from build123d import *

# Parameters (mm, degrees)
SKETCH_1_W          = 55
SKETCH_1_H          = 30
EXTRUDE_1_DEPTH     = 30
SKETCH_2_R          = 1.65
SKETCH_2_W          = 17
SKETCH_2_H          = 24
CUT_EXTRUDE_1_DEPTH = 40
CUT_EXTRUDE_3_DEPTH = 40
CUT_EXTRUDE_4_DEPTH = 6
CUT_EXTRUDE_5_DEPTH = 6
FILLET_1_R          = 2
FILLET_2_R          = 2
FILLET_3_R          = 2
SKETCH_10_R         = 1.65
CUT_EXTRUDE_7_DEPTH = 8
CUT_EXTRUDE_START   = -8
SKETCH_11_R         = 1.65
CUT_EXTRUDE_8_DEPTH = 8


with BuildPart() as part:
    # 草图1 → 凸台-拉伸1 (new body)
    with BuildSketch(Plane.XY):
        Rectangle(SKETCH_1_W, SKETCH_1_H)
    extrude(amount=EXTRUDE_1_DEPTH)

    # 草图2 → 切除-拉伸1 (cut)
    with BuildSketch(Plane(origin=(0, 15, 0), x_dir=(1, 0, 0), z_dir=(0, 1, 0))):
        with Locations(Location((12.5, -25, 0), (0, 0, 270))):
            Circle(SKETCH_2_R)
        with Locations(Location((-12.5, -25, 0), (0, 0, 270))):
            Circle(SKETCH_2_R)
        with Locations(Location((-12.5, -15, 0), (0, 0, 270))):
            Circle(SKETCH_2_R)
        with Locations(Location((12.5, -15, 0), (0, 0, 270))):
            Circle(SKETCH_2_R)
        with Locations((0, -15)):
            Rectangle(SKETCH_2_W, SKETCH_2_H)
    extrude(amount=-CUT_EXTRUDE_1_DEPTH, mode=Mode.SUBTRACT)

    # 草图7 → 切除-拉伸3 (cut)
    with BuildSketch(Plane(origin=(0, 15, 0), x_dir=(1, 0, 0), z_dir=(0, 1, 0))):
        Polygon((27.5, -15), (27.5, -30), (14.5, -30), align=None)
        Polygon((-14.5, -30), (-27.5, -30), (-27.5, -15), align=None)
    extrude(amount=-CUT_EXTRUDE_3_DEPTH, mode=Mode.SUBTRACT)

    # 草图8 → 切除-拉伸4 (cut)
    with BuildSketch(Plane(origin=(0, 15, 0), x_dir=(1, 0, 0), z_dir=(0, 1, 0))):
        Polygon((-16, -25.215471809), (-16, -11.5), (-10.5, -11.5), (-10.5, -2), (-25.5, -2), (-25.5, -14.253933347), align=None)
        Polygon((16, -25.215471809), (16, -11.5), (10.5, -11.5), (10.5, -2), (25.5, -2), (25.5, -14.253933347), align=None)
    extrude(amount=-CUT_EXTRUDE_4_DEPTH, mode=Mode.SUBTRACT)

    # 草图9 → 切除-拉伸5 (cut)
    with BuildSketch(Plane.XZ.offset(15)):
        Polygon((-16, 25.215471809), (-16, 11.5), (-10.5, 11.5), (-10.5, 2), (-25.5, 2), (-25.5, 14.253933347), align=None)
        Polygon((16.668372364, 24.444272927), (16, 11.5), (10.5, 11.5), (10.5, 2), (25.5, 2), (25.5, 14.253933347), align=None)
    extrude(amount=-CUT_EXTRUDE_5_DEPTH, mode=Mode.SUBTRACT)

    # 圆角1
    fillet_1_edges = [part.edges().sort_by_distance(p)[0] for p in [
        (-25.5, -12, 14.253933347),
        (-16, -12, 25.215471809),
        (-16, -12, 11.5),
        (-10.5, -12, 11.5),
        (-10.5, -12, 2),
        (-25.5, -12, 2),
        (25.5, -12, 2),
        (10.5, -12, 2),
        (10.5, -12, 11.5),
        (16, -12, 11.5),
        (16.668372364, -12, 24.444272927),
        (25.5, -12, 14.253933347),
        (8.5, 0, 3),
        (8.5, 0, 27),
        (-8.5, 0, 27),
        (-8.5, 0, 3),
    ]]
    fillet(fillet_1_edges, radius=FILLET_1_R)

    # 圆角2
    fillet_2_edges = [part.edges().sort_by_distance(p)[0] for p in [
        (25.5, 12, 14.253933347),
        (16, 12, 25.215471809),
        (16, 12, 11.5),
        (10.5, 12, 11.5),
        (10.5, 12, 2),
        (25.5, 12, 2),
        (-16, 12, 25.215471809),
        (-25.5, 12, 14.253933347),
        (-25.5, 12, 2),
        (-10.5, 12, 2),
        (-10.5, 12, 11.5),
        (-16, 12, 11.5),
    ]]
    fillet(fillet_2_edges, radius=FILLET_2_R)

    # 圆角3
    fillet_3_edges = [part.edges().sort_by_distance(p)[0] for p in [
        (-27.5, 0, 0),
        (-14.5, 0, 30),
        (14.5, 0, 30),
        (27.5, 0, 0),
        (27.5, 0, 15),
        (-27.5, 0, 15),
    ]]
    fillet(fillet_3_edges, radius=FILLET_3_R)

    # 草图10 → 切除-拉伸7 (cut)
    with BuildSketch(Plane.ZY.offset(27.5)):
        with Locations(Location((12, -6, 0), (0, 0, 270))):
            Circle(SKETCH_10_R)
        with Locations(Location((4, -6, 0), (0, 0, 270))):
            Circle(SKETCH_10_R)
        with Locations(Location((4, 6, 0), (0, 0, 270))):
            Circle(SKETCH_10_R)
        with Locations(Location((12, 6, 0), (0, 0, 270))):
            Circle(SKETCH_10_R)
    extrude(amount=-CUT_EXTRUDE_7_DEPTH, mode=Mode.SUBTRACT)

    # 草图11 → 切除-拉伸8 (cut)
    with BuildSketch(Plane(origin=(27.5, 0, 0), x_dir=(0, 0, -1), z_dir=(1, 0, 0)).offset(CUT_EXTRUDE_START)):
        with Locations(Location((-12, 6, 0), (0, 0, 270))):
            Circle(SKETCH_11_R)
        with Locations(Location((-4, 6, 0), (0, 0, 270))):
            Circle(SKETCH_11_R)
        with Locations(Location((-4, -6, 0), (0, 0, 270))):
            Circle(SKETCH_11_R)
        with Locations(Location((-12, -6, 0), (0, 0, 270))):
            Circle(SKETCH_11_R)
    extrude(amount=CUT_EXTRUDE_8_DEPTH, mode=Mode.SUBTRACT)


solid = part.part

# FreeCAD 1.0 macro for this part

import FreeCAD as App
import Part
import Sketcher
Q = App.Units.Quantity


def edges_at(feature, points):
    """Names of the edges that pass closest to the given points."""
    edges = feature.Shape.Edges
    near = lambda p: min(range(len(edges)), key=lambda i: edges[i].distToShape(Part.Vertex(*p))[0])
    return sorted({f"Edge{near(p) + 1}" for p in points})

doc = App.newDocument("Part")
body = doc.addObject("PartDesign::Body", "Body")

sketch1 = doc.addObject("Sketcher::SketchObject", "Sketch")
body.addObject(sketch1)
sketch1.AttachmentSupport = (doc.XY_Plane, [""])
sketch1.MapMode = "FlatFace"
sketch1.addGeometry(Part.LineSegment(App.Vector(-28, 15, 0), App.Vector(-28, -15, 0)), False)
sketch1.addGeometry(Part.LineSegment(App.Vector(-28, -15, 0), App.Vector(28, -15, 0)), False)
sketch1.addGeometry(Part.LineSegment(App.Vector(28, -15, 0), App.Vector(28, 15, 0)), False)
sketch1.addGeometry(Part.LineSegment(App.Vector(28, 15, 0), App.Vector(-28, 15, 0)), False)
sketch1.addConstraint(Sketcher.Constraint("Coincident", 0, 2, 1, 1))
sketch1.addConstraint(Sketcher.Constraint("Coincident", 1, 2, 2, 1))
sketch1.addConstraint(Sketcher.Constraint("Coincident", 2, 2, 3, 1))
sketch1.addConstraint(Sketcher.Constraint("Coincident", 3, 2, 0, 1))
sketch1.addConstraint(Sketcher.Constraint("Vertical", 0))
sketch1.addConstraint(Sketcher.Constraint("Horizontal", 1))
sketch1.addConstraint(Sketcher.Constraint("Vertical", 2))
sketch1.addConstraint(Sketcher.Constraint("Horizontal", 3))
sketch1.addConstraint(Sketcher.Constraint("Symmetric", 0, 2, 2, 2, -1, 1))
sketch1.addConstraint(Sketcher.Constraint("DistanceX", 1, 1, 1, 2, Q("55 mm")))
sketch1.addConstraint(Sketcher.Constraint("DistanceY", 0, 2, 0, 1, Q("30 mm")))
pad1 = doc.addObject("PartDesign::Pad", "Pad")
body.addObject(pad1)
pad1.Profile = sketch1
pad1.Length = 30

sketch2 = doc.addObject("Sketcher::SketchObject", "Sketch001")
body.addObject(sketch2)
sketch2.AttachmentSupport = (doc.XZ_Plane, [""])
sketch2.MapMode = "FlatFace"
sketch2.AttachmentOffset = App.Placement(App.Vector(0, 0, -15), App.Rotation())
sketch2.addGeometry(Part.Circle(App.Vector(12.5, 25, 0), App.Vector(0, 0, 1), 1.6), False)
sketch2.addGeometry(Part.Circle(App.Vector(-12.5, 25, 0), App.Vector(0, 0, 1), 1.6), False)
sketch2.addGeometry(Part.Circle(App.Vector(-12.5, 15, 0), App.Vector(0, 0, 1), 1.6), False)
sketch2.addGeometry(Part.Circle(App.Vector(12.5, 15, 0), App.Vector(0, 0, 1), 1.6), False)
sketch2.addGeometry(Part.LineSegment(App.Vector(-8.5, 3, 0), App.Vector(-8.5, 27, 0)), False)
sketch2.addGeometry(Part.LineSegment(App.Vector(-8.5, 27, 0), App.Vector(8.5, 27, 0)), False)
sketch2.addGeometry(Part.LineSegment(App.Vector(8.5, 27, 0), App.Vector(8.5, 3, 0)), False)
sketch2.addGeometry(Part.LineSegment(App.Vector(8.5, 3, 0), App.Vector(-8.5, 3, 0)), False)
sketch2.addConstraint(Sketcher.Constraint("Coincident", 4, 2, 5, 1))
sketch2.addConstraint(Sketcher.Constraint("Coincident", 5, 2, 6, 1))
sketch2.addConstraint(Sketcher.Constraint("Coincident", 6, 2, 7, 1))
sketch2.addConstraint(Sketcher.Constraint("Coincident", 7, 2, 4, 1))
sketch2.addConstraint(Sketcher.Constraint("Vertical", 4))
sketch2.addConstraint(Sketcher.Constraint("Horizontal", 5))
sketch2.addConstraint(Sketcher.Constraint("Vertical", 6))
sketch2.addConstraint(Sketcher.Constraint("Horizontal", 7))
sketch2.addConstraint(Sketcher.Constraint("Equal", 0, 1))
sketch2.addConstraint(Sketcher.Constraint("Equal", 1, 2))
sketch2.addConstraint(Sketcher.Constraint("Equal", 2, 3))
sketch2.addConstraint(Sketcher.Constraint("Symmetric", 0, 3, 1, 3, -2))
sketch2.addConstraint(Sketcher.Constraint("Symmetric", 2, 3, 3, 3, -2))
sketch2.addConstraint(Sketcher.Constraint("Vertical", 1, 3, 2, 3))
sketch2.addConstraint(Sketcher.Constraint("Diameter", 0, Q("3.3 mm")))
sketch2.addConstraint(Sketcher.Constraint("DistanceX", 5, 1, 5, 2, Q("17 mm")))
sketch2.addConstraint(Sketcher.Constraint("DistanceY", 4, 1, 4, 2, Q("24 mm")))
sketch2.addConstraint(Sketcher.Constraint("DistanceY", -1, 1, 0, 3, Q("25 mm")))
sketch2.addConstraint(Sketcher.Constraint("DistanceY", -1, 1, 2, 3, Q("15 mm")))
sketch2.addConstraint(Sketcher.Constraint("DistanceY", -1, 1, 4, 2, Q("27 mm")))
sketch2.addConstraint(Sketcher.Constraint("DistanceX", 1, 3, 0, 3, Q("25 mm")))
sketch2.addConstraint(Sketcher.Constraint("DistanceX", 1, 3, 4, 2, Q("4 mm")))
pocket1 = doc.addObject("PartDesign::Pocket", "Pocket")
body.addObject(pocket1)
pocket1.Profile = sketch2
pocket1.Length = 40
pocket1.Reversed = True

sketch3 = doc.addObject("Sketcher::SketchObject", "Sketch002")
body.addObject(sketch3)
sketch3.AttachmentSupport = (doc.XZ_Plane, [""])
sketch3.MapMode = "FlatFace"
sketch3.AttachmentOffset = App.Placement(App.Vector(0, 0, -15), App.Rotation())
sketch3.addGeometry(Part.LineSegment(App.Vector(28, 30, 0), App.Vector(28, 15, 0)), False)
sketch3.addGeometry(Part.LineSegment(App.Vector(28, 15, 0), App.Vector(14, 30, 0)), False)
sketch3.addGeometry(Part.LineSegment(App.Vector(14, 30, 0), App.Vector(28, 30, 0)), False)
sketch3.addGeometry(Part.LineSegment(App.Vector(-28, 30, 0), App.Vector(-14, 30, 0)), False)
sketch3.addGeometry(Part.LineSegment(App.Vector(-14, 30, 0), App.Vector(-28, 15, 0)), False)
sketch3.addGeometry(Part.LineSegment(App.Vector(-28, 15, 0), App.Vector(-28, 30, 0)), False)
sketch3.addConstraint(Sketcher.Constraint("Coincident", 0, 2, 1, 1))
sketch3.addConstraint(Sketcher.Constraint("Coincident", 1, 2, 2, 1))
sketch3.addConstraint(Sketcher.Constraint("Coincident", 2, 2, 0, 1))
sketch3.addConstraint(Sketcher.Constraint("Coincident", 3, 2, 4, 1))
sketch3.addConstraint(Sketcher.Constraint("Coincident", 4, 2, 5, 1))
sketch3.addConstraint(Sketcher.Constraint("Coincident", 5, 2, 3, 1))
sketch3.addConstraint(Sketcher.Constraint("Vertical", 0))
sketch3.addConstraint(Sketcher.Constraint("Horizontal", 2))
sketch3.addConstraint(Sketcher.Constraint("Horizontal", 3))
sketch3.addConstraint(Sketcher.Constraint("Vertical", 5))
sketch3.addConstraint(Sketcher.Constraint("Symmetric", 1, 2, 3, 2, -2))
sketch3.addConstraint(Sketcher.Constraint("Symmetric", 0, 2, 4, 2, -2))
sketch3.addConstraint(Sketcher.Constraint("DistanceX", 2, 1, 2, 2, Q("13 mm")))
sketch3.addConstraint(Sketcher.Constraint("DistanceY", 0, 2, 0, 1, Q("15 mm")))
sketch3.addConstraint(Sketcher.Constraint("DistanceY", -1, 1, 0, 2, Q("15 mm")))
sketch3.addConstraint(Sketcher.Constraint("DistanceX", 3, 2, 1, 2, Q("29 mm")))
pocket2 = doc.addObject("PartDesign::Pocket", "Pocket001")
body.addObject(pocket2)
pocket2.Profile = sketch3
pocket2.Length = 40
pocket2.Reversed = True

sketch4 = doc.addObject("Sketcher::SketchObject", "Sketch003")
body.addObject(sketch4)
sketch4.AttachmentSupport = (doc.XZ_Plane, [""])
sketch4.MapMode = "FlatFace"
sketch4.AttachmentOffset = App.Placement(App.Vector(0, 0, -15), App.Rotation())
sketch4.addGeometry(Part.LineSegment(App.Vector(-16, 25, 0), App.Vector(-16, 12, 0)), False)
sketch4.addGeometry(Part.LineSegment(App.Vector(-16, 12, 0), App.Vector(-10, 12, 0)), False)
sketch4.addGeometry(Part.LineSegment(App.Vector(-10, 12, 0), App.Vector(-10, 2, 0)), False)
sketch4.addGeometry(Part.LineSegment(App.Vector(-10, 2, 0), App.Vector(-26, 2, 0)), False)
sketch4.addGeometry(Part.LineSegment(App.Vector(-26, 2, 0), App.Vector(-26, 14, 0)), False)
sketch4.addGeometry(Part.LineSegment(App.Vector(-26, 14, 0), App.Vector(-16, 25, 0)), False)
sketch4.addGeometry(Part.LineSegment(App.Vector(16, 12, 0), App.Vector(16, 25, 0)), False)
sketch4.addGeometry(Part.LineSegment(App.Vector(16, 25, 0), App.Vector(26, 14, 0)), False)
sketch4.addGeometry(Part.LineSegment(App.Vector(26, 14, 0), App.Vector(26, 2, 0)), False)
sketch4.addGeometry(Part.LineSegment(App.Vector(26, 2, 0), App.Vector(10, 2, 0)), False)
sketch4.addGeometry(Part.LineSegment(App.Vector(10, 2, 0), App.Vector(10, 12, 0)), False)
sketch4.addGeometry(Part.LineSegment(App.Vector(10, 12, 0), App.Vector(16, 12, 0)), False)
sketch4.addConstraint(Sketcher.Constraint("Coincident", 0, 2, 1, 1))
sketch4.addConstraint(Sketcher.Constraint("Coincident", 1, 2, 2, 1))
sketch4.addConstraint(Sketcher.Constraint("Coincident", 2, 2, 3, 1))
sketch4.addConstraint(Sketcher.Constraint("Coincident", 3, 2, 4, 1))
sketch4.addConstraint(Sketcher.Constraint("Coincident", 4, 2, 5, 1))
sketch4.addConstraint(Sketcher.Constraint("Coincident", 5, 2, 0, 1))
sketch4.addConstraint(Sketcher.Constraint("Coincident", 6, 2, 7, 1))
sketch4.addConstraint(Sketcher.Constraint("Coincident", 7, 2, 8, 1))
sketch4.addConstraint(Sketcher.Constraint("Coincident", 8, 2, 9, 1))
sketch4.addConstraint(Sketcher.Constraint("Coincident", 9, 2, 10, 1))
sketch4.addConstraint(Sketcher.Constraint("Coincident", 10, 2, 11, 1))
sketch4.addConstraint(Sketcher.Constraint("Coincident", 11, 2, 6, 1))
sketch4.addConstraint(Sketcher.Constraint("Vertical", 0))
sketch4.addConstraint(Sketcher.Constraint("Horizontal", 1))
sketch4.addConstraint(Sketcher.Constraint("Vertical", 2))
sketch4.addConstraint(Sketcher.Constraint("Horizontal", 3))
sketch4.addConstraint(Sketcher.Constraint("Vertical", 4))
sketch4.addConstraint(Sketcher.Constraint("Vertical", 6))
sketch4.addConstraint(Sketcher.Constraint("Vertical", 8))
sketch4.addConstraint(Sketcher.Constraint("Horizontal", 9))
sketch4.addConstraint(Sketcher.Constraint("Vertical", 10))
sketch4.addConstraint(Sketcher.Constraint("Horizontal", 11))
sketch4.addConstraint(Sketcher.Constraint("Symmetric", 5, 2, 6, 2, -2))
sketch4.addConstraint(Sketcher.Constraint("Symmetric", 4, 2, 7, 2, -2))
sketch4.addConstraint(Sketcher.Constraint("Symmetric", 2, 2, 9, 2, -2))
sketch4.addConstraint(Sketcher.Constraint("Horizontal", 1, 2, 10, 2))
sketch4.addConstraint(Sketcher.Constraint("DistanceX", 3, 2, 3, 1, Q("15 mm")))
sketch4.addConstraint(Sketcher.Constraint("DistanceX", 1, 1, 1, 2, Q("5.5 mm")))
sketch4.addConstraint(Sketcher.Constraint("DistanceY", 2, 2, 2, 1, Q("9.5 mm")))
sketch4.addConstraint(Sketcher.Constraint("DistanceX", 0, 2, -1, 1, Q("16 mm")))
sketch4.addConstraint(Sketcher.Constraint("DistanceY", -1, 1, 2, 2, Q("2 mm")))
sketch4.addConstraint(Sketcher.Constraint("DistanceY", 0, 2, 0, 1, Q("13.715472 mm")))
sketch4.addConstraint(Sketcher.Constraint("DistanceY", 4, 1, 4, 2, Q("12.253933 mm")))
pocket3 = doc.addObject("PartDesign::Pocket", "Pocket002")
body.addObject(pocket3)
pocket3.Profile = sketch4
pocket3.Length = 6
pocket3.Reversed = True

sketch5 = doc.addObject("Sketcher::SketchObject", "Sketch004")
body.addObject(sketch5)
sketch5.AttachmentSupport = (doc.XZ_Plane, [""])
sketch5.MapMode = "FlatFace"
sketch5.AttachmentOffset = App.Placement(App.Vector(0, 0, 15), App.Rotation())
sketch5.addGeometry(Part.LineSegment(App.Vector(-16, 12, 0), App.Vector(-16, 25, 0)), False)
sketch5.addGeometry(Part.LineSegment(App.Vector(-16, 25, 0), App.Vector(-26, 14, 0)), False)
sketch5.addGeometry(Part.LineSegment(App.Vector(-26, 14, 0), App.Vector(-26, 2, 0)), False)
sketch5.addGeometry(Part.LineSegment(App.Vector(-26, 2, 0), App.Vector(-10, 2, 0)), False)
sketch5.addGeometry(Part.LineSegment(App.Vector(-10, 2, 0), App.Vector(-10, 12, 0)), False)
sketch5.addGeometry(Part.LineSegment(App.Vector(-10, 12, 0), App.Vector(-16, 12, 0)), False)
sketch5.addGeometry(Part.LineSegment(App.Vector(17, 24, 0), App.Vector(16, 12, 0)), False)
sketch5.addGeometry(Part.LineSegment(App.Vector(16, 12, 0), App.Vector(10, 12, 0)), False)
sketch5.addGeometry(Part.LineSegment(App.Vector(10, 12, 0), App.Vector(10, 2, 0)), False)
sketch5.addGeometry(Part.LineSegment(App.Vector(10, 2, 0), App.Vector(26, 2, 0)), False)
sketch5.addGeometry(Part.LineSegment(App.Vector(26, 2, 0), App.Vector(26, 14, 0)), False)
sketch5.addGeometry(Part.LineSegment(App.Vector(26, 14, 0), App.Vector(17, 24, 0)), False)
sketch5.addConstraint(Sketcher.Constraint("Coincident", 0, 2, 1, 1))
sketch5.addConstraint(Sketcher.Constraint("Coincident", 1, 2, 2, 1))
sketch5.addConstraint(Sketcher.Constraint("Coincident", 2, 2, 3, 1))
sketch5.addConstraint(Sketcher.Constraint("Coincident", 3, 2, 4, 1))
sketch5.addConstraint(Sketcher.Constraint("Coincident", 4, 2, 5, 1))
sketch5.addConstraint(Sketcher.Constraint("Coincident", 5, 2, 0, 1))
sketch5.addConstraint(Sketcher.Constraint("Coincident", 6, 2, 7, 1))
sketch5.addConstraint(Sketcher.Constraint("Coincident", 7, 2, 8, 1))
sketch5.addConstraint(Sketcher.Constraint("Coincident", 8, 2, 9, 1))
sketch5.addConstraint(Sketcher.Constraint("Coincident", 9, 2, 10, 1))
sketch5.addConstraint(Sketcher.Constraint("Coincident", 10, 2, 11, 1))
sketch5.addConstraint(Sketcher.Constraint("Coincident", 11, 2, 6, 1))
sketch5.addConstraint(Sketcher.Constraint("Vertical", 0))
sketch5.addConstraint(Sketcher.Constraint("Vertical", 2))
sketch5.addConstraint(Sketcher.Constraint("Horizontal", 3))
sketch5.addConstraint(Sketcher.Constraint("Vertical", 4))
sketch5.addConstraint(Sketcher.Constraint("Horizontal", 5))
sketch5.addConstraint(Sketcher.Constraint("Horizontal", 7))
sketch5.addConstraint(Sketcher.Constraint("Vertical", 8))
sketch5.addConstraint(Sketcher.Constraint("Horizontal", 9))
sketch5.addConstraint(Sketcher.Constraint("Vertical", 10))
sketch5.addConstraint(Sketcher.Constraint("Symmetric", 5, 2, 6, 2, -2))
sketch5.addConstraint(Sketcher.Constraint("Symmetric", 3, 2, 8, 2, -2))
sketch5.addConstraint(Sketcher.Constraint("Symmetric", 1, 2, 10, 2, -2))
sketch5.addConstraint(Sketcher.Constraint("DistanceX", 3, 1, 3, 2, Q("15 mm")))
sketch5.addConstraint(Sketcher.Constraint("DistanceX", 5, 2, 5, 1, Q("5.5 mm")))
sketch5.addConstraint(Sketcher.Constraint("DistanceY", 4, 1, 4, 2, Q("9.5 mm")))
sketch5.addConstraint(Sketcher.Constraint("DistanceX", 0, 2, -1, 1, Q("16 mm")))
sketch5.addConstraint(Sketcher.Constraint("DistanceY", -1, 1, 2, 2, Q("2 mm")))
sketch5.addConstraint(Sketcher.Constraint("DistanceY", 0, 1, 0, 2, Q("13.715472 mm")))
sketch5.addConstraint(Sketcher.Constraint("Distance", 11, Q("13.484831 mm")))
sketch5.addConstraint(Sketcher.Constraint("DistanceY", 2, 2, 2, 1, Q("12.253933 mm")))
sketch5.addConstraint(Sketcher.Constraint("DistanceY", 10, 2, 11, 2, Q("10.19034 mm")))
pocket4 = doc.addObject("PartDesign::Pocket", "Pocket003")
body.addObject(pocket4)
pocket4.Profile = sketch5
pocket4.Length = 6
doc.recompute()

fillet = doc.addObject("PartDesign::Fillet", "Fillet")
body.addObject(fillet)
fillet.Base = (pocket4, edges_at(pocket4, [
    (-25.5, -12, 14.254),
    (-16, -12, 25.215),
    (-16, -12, 11.5),
    (-10.5, -12, 11.5),
    (-10.5, -12, 2),
    (-25.5, -12, 2),
    (25.5, -12, 2),
    (10.5, -12, 2),
    (10.5, -12, 11.5),
    (16, -12, 11.5),
    (16.668, -12, 24.444),
    (25.5, -12, 14.254),
    (8.5, 0, 3),
    (8.5, 0, 27),
    (-8.5, 0, 27),
    (-8.5, 0, 3),
]))
fillet.Radius = 2
doc.recompute()

fillet2 = doc.addObject("PartDesign::Fillet", "Fillet001")
body.addObject(fillet2)
fillet2.Base = (fillet, edges_at(fillet, [
    (25.5, 12, 14.254),
    (16, 12, 25.215),
    (16, 12, 11.5),
    (10.5, 12, 11.5),
    (10.5, 12, 2),
    (25.5, 12, 2),
    (-16, 12, 25.215),
    (-25.5, 12, 14.254),
    (-25.5, 12, 2),
    (-10.5, 12, 2),
    (-10.5, 12, 11.5),
    (-16, 12, 11.5),
]))
fillet2.Radius = 2
doc.recompute()

fillet3 = doc.addObject("PartDesign::Fillet", "Fillet002")
body.addObject(fillet3)
fillet3.Base = (fillet2, edges_at(fillet2, [
    (-27.5, 0, 0),
    (-14.5, 0, 30),
    (14.5, 0, 30),
    (27.5, 0, 0),
    (27.5, 0, 15),
    (-27.5, 0, 15),
]))
fillet3.Radius = 2

sketch6 = doc.addObject("Sketcher::SketchObject", "Sketch005")
body.addObject(sketch6)
sketch6.AttachmentSupport = (doc.YZ_Plane, [""])
sketch6.MapMode = "FlatFace"
sketch6.AttachmentOffset = App.Placement(App.Vector(0, 0, -27.5), App.Rotation())
sketch6.addGeometry(Part.Circle(App.Vector(-6, 12, 0), App.Vector(0, 0, 1), 1.6), False)
sketch6.addGeometry(Part.Circle(App.Vector(-6, 4, 0), App.Vector(0, 0, 1), 1.6), False)
sketch6.addGeometry(Part.Circle(App.Vector(6, 4, 0), App.Vector(0, 0, 1), 1.6), False)
sketch6.addGeometry(Part.Circle(App.Vector(6, 12, 0), App.Vector(0, 0, 1), 1.6), False)
sketch6.addConstraint(Sketcher.Constraint("Equal", 0, 1))
sketch6.addConstraint(Sketcher.Constraint("Equal", 1, 2))
sketch6.addConstraint(Sketcher.Constraint("Equal", 2, 3))
sketch6.addConstraint(Sketcher.Constraint("Symmetric", 1, 3, 2, 3, -2))
sketch6.addConstraint(Sketcher.Constraint("Symmetric", 0, 3, 3, 3, -2))
sketch6.addConstraint(Sketcher.Constraint("Vertical", 0, 3, 1, 3))
sketch6.addConstraint(Sketcher.Constraint("Diameter", 0, Q("3.3 mm")))
sketch6.addConstraint(Sketcher.Constraint("DistanceX", 0, 3, -1, 1, Q("6 mm")))
sketch6.addConstraint(Sketcher.Constraint("DistanceY", -1, 1, 0, 3, Q("12 mm")))
sketch6.addConstraint(Sketcher.Constraint("DistanceY", -1, 1, 1, 3, Q("4 mm")))
pocket5 = doc.addObject("PartDesign::Pocket", "Pocket004")
body.addObject(pocket5)
pocket5.Profile = sketch6
pocket5.Length = 8
pocket5.Reversed = True

sketch7 = doc.addObject("Sketcher::SketchObject", "Sketch006")
body.addObject(sketch7)
sketch7.AttachmentSupport = (doc.YZ_Plane, [""])
sketch7.MapMode = "FlatFace"
sketch7.AttachmentOffset = App.Placement(App.Vector(0, 0, 19.5), App.Rotation())
sketch7.addGeometry(Part.Circle(App.Vector(6, 12, 0), App.Vector(0, 0, 1), 1.6), False)
sketch7.addGeometry(Part.Circle(App.Vector(6, 4, 0), App.Vector(0, 0, 1), 1.6), False)
sketch7.addGeometry(Part.Circle(App.Vector(-6, 4, 0), App.Vector(0, 0, 1), 1.6), False)
sketch7.addGeometry(Part.Circle(App.Vector(-6, 12, 0), App.Vector(0, 0, 1), 1.6), False)
sketch7.addConstraint(Sketcher.Constraint("Equal", 0, 1))
sketch7.addConstraint(Sketcher.Constraint("Equal", 1, 2))
sketch7.addConstraint(Sketcher.Constraint("Equal", 2, 3))
sketch7.addConstraint(Sketcher.Constraint("Symmetric", 1, 3, 2, 3, -2))
sketch7.addConstraint(Sketcher.Constraint("Symmetric", 0, 3, 3, 3, -2))
sketch7.addConstraint(Sketcher.Constraint("Vertical", 0, 3, 1, 3))
sketch7.addConstraint(Sketcher.Constraint("Diameter", 0, Q("3.3 mm")))
sketch7.addConstraint(Sketcher.Constraint("DistanceX", -1, 1, 0, 3, Q("6 mm")))
sketch7.addConstraint(Sketcher.Constraint("DistanceY", -1, 1, 0, 3, Q("12 mm")))
sketch7.addConstraint(Sketcher.Constraint("DistanceY", -1, 1, 1, 3, Q("4 mm")))
pocket6 = doc.addObject("PartDesign::Pocket", "Pocket005")
body.addObject(pocket6)
pocket6.Profile = sketch7
pocket6.Length = 8
pocket6.Reversed = True

doc.recompute()
